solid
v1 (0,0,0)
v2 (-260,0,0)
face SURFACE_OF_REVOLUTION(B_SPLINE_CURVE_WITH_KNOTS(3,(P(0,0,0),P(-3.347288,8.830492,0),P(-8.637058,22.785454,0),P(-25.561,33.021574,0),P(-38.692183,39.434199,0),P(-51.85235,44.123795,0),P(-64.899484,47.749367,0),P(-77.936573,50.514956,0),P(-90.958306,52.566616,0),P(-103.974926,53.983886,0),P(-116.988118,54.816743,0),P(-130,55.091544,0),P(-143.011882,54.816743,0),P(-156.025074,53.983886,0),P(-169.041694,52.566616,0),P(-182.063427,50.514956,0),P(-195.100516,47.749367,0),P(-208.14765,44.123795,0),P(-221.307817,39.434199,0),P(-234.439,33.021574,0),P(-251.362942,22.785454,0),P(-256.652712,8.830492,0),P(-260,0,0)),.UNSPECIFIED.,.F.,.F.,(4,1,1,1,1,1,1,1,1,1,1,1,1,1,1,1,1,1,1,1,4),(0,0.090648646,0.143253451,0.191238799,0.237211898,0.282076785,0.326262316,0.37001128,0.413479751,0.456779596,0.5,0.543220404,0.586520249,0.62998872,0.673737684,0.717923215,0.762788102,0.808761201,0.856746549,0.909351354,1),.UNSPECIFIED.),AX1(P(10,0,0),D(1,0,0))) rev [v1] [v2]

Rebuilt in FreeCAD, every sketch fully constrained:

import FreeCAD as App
import Part
import Sketcher
from FreeCAD import Vector

doc = App.newDocument("Part")
params = doc.addObject("Spreadsheet::Sheet", "Params")
for row, (alias, value) in enumerate([
    ("revolution_angle", "360 deg"),
], start=1):
    params.set(f"A{row}", alias)
    params.set(f"B{row}", "=" + value)
    params.setAlias(f"B{row}", alias)

body = doc.addObject("PartDesign::Body", "Body")

# Sketch on XY plane
sketch1 = doc.addObject("Sketcher::SketchObject", "Sketch")
body.addObject(sketch1)
sketch1.AttachmentSupport = (doc.XY_Plane, [""])
sketch1.MapMode = "FlatFace"
sketch1.addGeometry(Part.LineSegment(Vector(-260, 0, 0), Vector(0, 0, 0)), False)
sketch1.addGeometry(Part.BSplineCurve([Vector(0, 0, 0), Vector(-3.347288, 8.830492, 0), Vector(-8.637058, 22.785454, 0), Vector(-25.561, 33.021574, 0), Vector(-38.692183, 39.434199, 0), Vector(-51.85235, 44.123795, 0), Vector(-64.899484, 47.749367, 0), Vector(-77.936573, 50.514956, 0), Vector(-90.958306, 52.566616, 0), Vector(-103.974926, 53.983886, 0), Vector(-116.988118, 54.816743, 0), Vector(-130, 55.091544, 0), Vector(-143.011882, 54.816743, 0), Vector(-156.025074, 53.983886, 0), Vector(-169.041694, 52.566616, 0), Vector(-182.063427, 50.514956, 0), Vector(-195.100516, 47.749367, 0), Vector(-208.14765, 44.123795, 0), Vector(-221.307817, 39.434199, 0), Vector(-234.439, 33.021574, 0), Vector(-251.362942, 22.785454, 0), Vector(-256.652712, 8.830492, 0), Vector(-260, 0, 0)], [4, 1, 1, 1, 1, 1, 1, 1, 1, 1, 1, 1, 1, 1, 1, 1, 1, 1, 1, 1, 4], [0, 0.090648646, 0.143253451, 0.191238799, 0.237211898, 0.282076785, 0.326262316, 0.37001128, 0.413479751, 0.456779596, 0.5, 0.543220404, 0.586520249, 0.62998872, 0.673737684, 0.717923215, 0.762788102, 0.808761201, 0.856746549, 0.909351354, 1], False, 3, [1, 1, 1, 1, 1, 1, 1, 1, 1, 1, 1, 1, 1, 1, 1, 1, 1, 1, 1, 1, 1, 1, 1], False), False)
sketch1.addConstraint(Sketcher.Constraint("Block", 1))
sketch1.addConstraint(Sketcher.Constraint("Coincident", 0, 1, 1, 2))
sketch1.addConstraint(Sketcher.Constraint("Coincident", 1, 1, 0, 2))
revolution = doc.addObject("PartDesign::Revolution", "Revolution")
body.addObject(revolution)
revolution.Profile = sketch1
revolution.ReferenceAxis = (sketch1, ["H_Axis"])
revolution.setExpression("Angle", "Params.revolution_angle")

doc.recompute()
